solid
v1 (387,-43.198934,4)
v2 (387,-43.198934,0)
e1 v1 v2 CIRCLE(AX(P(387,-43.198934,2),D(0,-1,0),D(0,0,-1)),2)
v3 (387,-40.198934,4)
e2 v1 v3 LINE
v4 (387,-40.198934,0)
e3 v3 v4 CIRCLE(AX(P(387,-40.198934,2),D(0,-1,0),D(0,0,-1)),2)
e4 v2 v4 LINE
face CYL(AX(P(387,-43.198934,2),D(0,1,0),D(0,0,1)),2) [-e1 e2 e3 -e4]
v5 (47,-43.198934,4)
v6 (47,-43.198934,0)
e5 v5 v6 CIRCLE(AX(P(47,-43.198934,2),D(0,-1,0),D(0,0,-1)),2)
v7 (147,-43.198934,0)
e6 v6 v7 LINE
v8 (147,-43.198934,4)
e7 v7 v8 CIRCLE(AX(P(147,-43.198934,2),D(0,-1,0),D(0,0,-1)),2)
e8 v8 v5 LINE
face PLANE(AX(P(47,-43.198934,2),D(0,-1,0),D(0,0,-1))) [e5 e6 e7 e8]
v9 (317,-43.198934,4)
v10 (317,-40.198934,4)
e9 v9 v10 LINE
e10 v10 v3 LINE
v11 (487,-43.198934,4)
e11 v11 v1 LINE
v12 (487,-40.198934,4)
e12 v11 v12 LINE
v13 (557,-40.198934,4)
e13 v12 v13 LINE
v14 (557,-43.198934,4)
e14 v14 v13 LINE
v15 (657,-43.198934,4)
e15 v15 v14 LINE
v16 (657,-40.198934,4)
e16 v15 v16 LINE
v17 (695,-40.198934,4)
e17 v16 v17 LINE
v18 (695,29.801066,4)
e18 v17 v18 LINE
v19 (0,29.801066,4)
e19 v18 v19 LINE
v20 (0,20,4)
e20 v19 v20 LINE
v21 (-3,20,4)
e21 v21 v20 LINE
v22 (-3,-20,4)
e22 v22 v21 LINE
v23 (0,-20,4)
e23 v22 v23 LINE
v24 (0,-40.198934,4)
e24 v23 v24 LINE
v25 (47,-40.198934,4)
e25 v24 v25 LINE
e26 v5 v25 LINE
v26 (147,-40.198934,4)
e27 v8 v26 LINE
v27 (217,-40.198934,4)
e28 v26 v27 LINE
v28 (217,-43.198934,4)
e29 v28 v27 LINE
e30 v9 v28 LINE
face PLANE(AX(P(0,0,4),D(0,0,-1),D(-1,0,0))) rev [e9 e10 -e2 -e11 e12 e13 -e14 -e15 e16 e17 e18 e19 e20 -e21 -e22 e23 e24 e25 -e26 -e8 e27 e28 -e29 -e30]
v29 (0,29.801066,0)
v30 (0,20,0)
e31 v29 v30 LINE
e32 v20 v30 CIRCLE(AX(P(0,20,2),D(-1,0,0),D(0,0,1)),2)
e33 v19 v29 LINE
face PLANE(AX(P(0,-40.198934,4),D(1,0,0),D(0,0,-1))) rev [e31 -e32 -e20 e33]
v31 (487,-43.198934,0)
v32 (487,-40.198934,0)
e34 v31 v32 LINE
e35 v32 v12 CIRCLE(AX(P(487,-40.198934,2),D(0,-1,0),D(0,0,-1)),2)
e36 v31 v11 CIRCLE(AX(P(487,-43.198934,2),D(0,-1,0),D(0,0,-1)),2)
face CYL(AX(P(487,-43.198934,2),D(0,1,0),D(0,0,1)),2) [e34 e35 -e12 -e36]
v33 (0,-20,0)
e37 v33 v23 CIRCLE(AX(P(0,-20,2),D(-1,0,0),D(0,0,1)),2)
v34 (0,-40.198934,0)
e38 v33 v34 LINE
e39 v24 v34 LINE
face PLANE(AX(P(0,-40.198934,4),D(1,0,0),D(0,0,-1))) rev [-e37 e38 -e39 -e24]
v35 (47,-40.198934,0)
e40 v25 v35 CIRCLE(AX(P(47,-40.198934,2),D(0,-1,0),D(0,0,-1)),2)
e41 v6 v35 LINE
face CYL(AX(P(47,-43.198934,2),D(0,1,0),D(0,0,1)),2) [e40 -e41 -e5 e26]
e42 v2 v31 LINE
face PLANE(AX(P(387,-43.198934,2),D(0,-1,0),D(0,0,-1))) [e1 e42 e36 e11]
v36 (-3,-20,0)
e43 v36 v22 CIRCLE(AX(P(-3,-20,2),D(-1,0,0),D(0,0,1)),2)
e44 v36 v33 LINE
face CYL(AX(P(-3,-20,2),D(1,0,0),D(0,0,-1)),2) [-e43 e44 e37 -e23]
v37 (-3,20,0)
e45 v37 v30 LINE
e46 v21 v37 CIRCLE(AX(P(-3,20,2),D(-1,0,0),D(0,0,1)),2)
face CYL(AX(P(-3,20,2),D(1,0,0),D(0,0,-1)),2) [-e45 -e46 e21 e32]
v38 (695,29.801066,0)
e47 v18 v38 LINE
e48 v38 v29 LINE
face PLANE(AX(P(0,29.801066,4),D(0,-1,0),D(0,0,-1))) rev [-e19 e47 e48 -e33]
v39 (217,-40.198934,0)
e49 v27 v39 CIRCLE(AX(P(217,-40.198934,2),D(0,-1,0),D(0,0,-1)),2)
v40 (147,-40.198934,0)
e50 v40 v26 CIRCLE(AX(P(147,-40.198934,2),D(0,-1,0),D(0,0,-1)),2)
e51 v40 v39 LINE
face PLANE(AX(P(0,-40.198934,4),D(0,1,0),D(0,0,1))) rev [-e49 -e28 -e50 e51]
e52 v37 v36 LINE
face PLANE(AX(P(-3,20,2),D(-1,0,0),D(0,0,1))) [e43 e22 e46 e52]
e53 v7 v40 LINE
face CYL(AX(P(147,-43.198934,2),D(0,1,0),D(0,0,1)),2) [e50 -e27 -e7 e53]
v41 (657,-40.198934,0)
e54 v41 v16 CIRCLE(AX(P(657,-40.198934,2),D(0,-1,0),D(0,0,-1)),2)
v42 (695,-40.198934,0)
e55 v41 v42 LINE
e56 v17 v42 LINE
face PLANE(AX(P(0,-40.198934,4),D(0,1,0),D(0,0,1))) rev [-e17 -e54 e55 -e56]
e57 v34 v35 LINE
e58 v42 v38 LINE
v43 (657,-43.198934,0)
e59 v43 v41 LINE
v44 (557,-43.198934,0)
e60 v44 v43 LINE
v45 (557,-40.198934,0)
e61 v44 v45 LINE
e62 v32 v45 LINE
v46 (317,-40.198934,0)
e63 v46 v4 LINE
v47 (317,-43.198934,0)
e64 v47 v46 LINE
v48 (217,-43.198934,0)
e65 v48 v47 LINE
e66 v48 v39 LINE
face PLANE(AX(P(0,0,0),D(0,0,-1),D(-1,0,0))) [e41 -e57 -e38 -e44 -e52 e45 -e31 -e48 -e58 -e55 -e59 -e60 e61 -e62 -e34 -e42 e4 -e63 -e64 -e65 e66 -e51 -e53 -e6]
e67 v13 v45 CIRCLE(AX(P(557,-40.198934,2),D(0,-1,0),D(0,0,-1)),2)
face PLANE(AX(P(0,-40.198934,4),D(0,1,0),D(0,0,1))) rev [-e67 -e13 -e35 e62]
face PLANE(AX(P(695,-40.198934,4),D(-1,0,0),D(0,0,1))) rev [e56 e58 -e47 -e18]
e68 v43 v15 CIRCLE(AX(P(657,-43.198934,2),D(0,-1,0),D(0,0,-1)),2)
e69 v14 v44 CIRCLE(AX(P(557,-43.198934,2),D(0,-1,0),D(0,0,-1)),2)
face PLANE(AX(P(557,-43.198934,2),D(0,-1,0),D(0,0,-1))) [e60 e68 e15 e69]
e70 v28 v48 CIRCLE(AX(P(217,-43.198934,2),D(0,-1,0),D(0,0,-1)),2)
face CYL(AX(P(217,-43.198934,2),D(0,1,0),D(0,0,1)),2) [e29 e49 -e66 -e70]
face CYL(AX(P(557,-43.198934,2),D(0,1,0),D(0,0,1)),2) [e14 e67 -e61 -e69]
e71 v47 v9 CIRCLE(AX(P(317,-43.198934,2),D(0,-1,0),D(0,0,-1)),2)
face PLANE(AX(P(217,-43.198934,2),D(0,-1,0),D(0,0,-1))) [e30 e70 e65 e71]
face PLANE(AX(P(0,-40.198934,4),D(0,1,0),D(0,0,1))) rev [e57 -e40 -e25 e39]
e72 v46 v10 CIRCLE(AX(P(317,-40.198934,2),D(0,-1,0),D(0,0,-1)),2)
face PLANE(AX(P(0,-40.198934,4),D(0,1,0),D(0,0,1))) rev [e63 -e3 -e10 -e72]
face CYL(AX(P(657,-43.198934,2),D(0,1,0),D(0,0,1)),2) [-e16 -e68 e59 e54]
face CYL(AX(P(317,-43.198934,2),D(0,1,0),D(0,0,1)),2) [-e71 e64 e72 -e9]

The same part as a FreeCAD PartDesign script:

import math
import FreeCAD as App
import Part
import Sketcher

V = App.Vector
Q = App.Units.Quantity


def add_polygon(sketch, points):
    """Adds a closed chain of lines whose ends are joined by coincident constraints."""
    first, n = sketch.GeometryCount, len(points)
    for a, b in zip(points, points[1:] + points[:1]):
        sketch.addGeometry(Part.LineSegment(App.Vector(*a, 0), App.Vector(*b, 0)), False)
    for i in range(n):
        sketch.addConstraint(Sketcher.Constraint("Coincident", first + i, 2, first + (i + 1) % n, 1))

doc = App.newDocument("Part")
body = doc.addObject("PartDesign::Body", "Body")

sketch1 = body.newObject("Sketcher::SketchObject", "Sketch")
sketch1.AttachmentSupport = (doc.getObject("XY_Plane"), [""])
sketch1.MapMode = "FlatFace"
add_polygon(sketch1, [(0, 30), (0, -40), (695, -40), (695, 30)])
sketch1.addConstraint([
    Sketcher.Constraint("Vertical", 0),
    Sketcher.Constraint("Horizontal", 1),
    Sketcher.Constraint("Vertical", 2),
    Sketcher.Constraint("Horizontal", 3),
    Sketcher.Constraint("PointOnObject", 0, 2, -2),
    Sketcher.Constraint("DistanceX", 1, 1, 1, 2, Q("695 mm")),
    Sketcher.Constraint("DistanceY", 0, 2, 0, 1, Q("70 mm")),
    Sketcher.Constraint("DistanceY", 0, 2, -1, 1, Q("40.198934 mm")),
])
pad1 = body.newObject("PartDesign::Pad", "Pad")
pad1.Profile = sketch1
pad1.Length = 4

sketch2 = body.newObject("Sketcher::SketchObject", "Sketch001")
sketch2.AttachmentSupport = (doc.getObject("XZ_Plane"), [""])
sketch2.MapMode = "FlatFace"
sketch2.AttachmentOffset = App.Placement(V(0, 0, 40.198934), App.Rotation())
sketch2.addGeometry([
    Part.LineSegment(V(147, 4, 0), V(47, 4, 0)),
    Part.ArcOfCircle(Part.Circle(V(47, 2, 0), V(0, 0, 1), 2), math.radians(90), math.radians(270)),
    Part.LineSegment(V(47, 0, 0), V(147, 0, 0)),
    Part.ArcOfCircle(Part.Circle(V(147, 2, 0), V(0, 0, 1), 2), math.radians(-90), math.radians(90)),
    Part.LineSegment(V(317, 4, 0), V(217, 4, 0)),
    Part.ArcOfCircle(Part.Circle(V(217, 2, 0), V(0, 0, 1), 2), math.radians(90), math.radians(270)),
    Part.LineSegment(V(217, 0, 0), V(317, 0, 0)),
    Part.ArcOfCircle(Part.Circle(V(317, 2, 0), V(0, 0, 1), 2), math.radians(-90), math.radians(90)),
    Part.LineSegment(V(487, 4, 0), V(387, 4, 0)),
    Part.ArcOfCircle(Part.Circle(V(387, 2, 0), V(0, 0, 1), 2), math.radians(90), math.radians(270)),
    Part.LineSegment(V(387, 0, 0), V(487, 0, 0)),
    Part.ArcOfCircle(Part.Circle(V(487, 2, 0), V(0, 0, 1), 2), math.radians(-90), math.radians(90)),
    Part.LineSegment(V(657, 4, 0), V(557, 4, 0)),
    Part.ArcOfCircle(Part.Circle(V(557, 2, 0), V(0, 0, 1), 2), math.radians(90), math.radians(270)),
    Part.LineSegment(V(557, 0, 0), V(657, 0, 0)),
    Part.ArcOfCircle(Part.Circle(V(657, 2, 0), V(0, 0, 1), 2), math.radians(-90), math.radians(90)),
], False)
sketch2.addConstraint([
    Sketcher.Constraint("Tangent", 0, 2, 1, 1),
    Sketcher.Constraint("Tangent", 1, 2, 2, 1),
    Sketcher.Constraint("Tangent", 2, 2, 3, 1),
    Sketcher.Constraint("Tangent", 3, 2, 0, 1),
    Sketcher.Constraint("Tangent", 4, 2, 5, 1),
    Sketcher.Constraint("Tangent", 5, 2, 6, 1),
    Sketcher.Constraint("Tangent", 6, 2, 7, 1),
    Sketcher.Constraint("Tangent", 7, 2, 4, 1),
    Sketcher.Constraint("Tangent", 8, 2, 9, 1),
    Sketcher.Constraint("Tangent", 9, 2, 10, 1),
    Sketcher.Constraint("Tangent", 10, 2, 11, 1),
    Sketcher.Constraint("Tangent", 11, 2, 8, 1),
    Sketcher.Constraint("Tangent", 12, 2, 13, 1),
    Sketcher.Constraint("Tangent", 13, 2, 14, 1),
    Sketcher.Constraint("Tangent", 14, 2, 15, 1),
    Sketcher.Constraint("Tangent", 15, 2, 12, 1),
    Sketcher.Constraint("Horizontal", 0),
    Sketcher.Constraint("Horizontal", 2),
    Sketcher.Constraint("Horizontal", 4),
    Sketcher.Constraint("Horizontal", 6),
    Sketcher.Constraint("Horizontal", 8),
    Sketcher.Constraint("Horizontal", 10),
    Sketcher.Constraint("Horizontal", 12),
    Sketcher.Constraint("Horizontal", 14),
    Sketcher.Constraint("Equal", 3, 5),
    Sketcher.Constraint("Equal", 7, 9),
    Sketcher.Constraint("Equal", 11, 13),
    Sketcher.Constraint("PointOnObject", 1, 2, -1),
    Sketcher.Constraint("PointOnObject", 5, 2, -1),
    Sketcher.Constraint("PointOnObject", 9, 2, -1),
    Sketcher.Constraint("PointOnObject", 13, 2, -1),
    Sketcher.Constraint("Equal", 2, 4),
    Sketcher.Constraint("Equal", 6, 8),
    Sketcher.Constraint("Equal", 10, 12),
    Sketcher.Constraint("Radius", 1, Q("2 mm")),
    Sketcher.Constraint("DistanceX", 0, 2, 0, 1, Q("100 mm")),
    Sketcher.Constraint("DistanceX", -1, 1, 1, 3, Q("47 mm")),
    Sketcher.Constraint("DistanceX", -1, 1, 5, 3, Q("217 mm")),
    Sketcher.Constraint("DistanceX", -1, 1, 9, 3, Q("387 mm")),
    Sketcher.Constraint("DistanceX", -1, 1, 13, 3, Q("557 mm")),
])
pad2 = body.newObject("PartDesign::Pad", "Pad001")
pad2.Profile = sketch2
pad2.Length = 3

sketch3 = body.newObject("Sketcher::SketchObject", "Sketch002")
sketch3.AttachmentSupport = (doc.getObject("YZ_Plane"), [""])
sketch3.MapMode = "FlatFace"
sketch3.addGeometry([
    Part.LineSegment(V(-20, 4, 0), V(20, 4, 0)),
    Part.ArcOfCircle(Part.Circle(V(20, 2, 0), V(0, 0, 1), 2), math.radians(-90), math.radians(90)),
    Part.LineSegment(V(20, 0, 0), V(-20, 0, 0)),
    Part.ArcOfCircle(Part.Circle(V(-20, 2, 0), V(0, 0, 1), 2), math.radians(90), math.radians(270)),
], False)
sketch3.addConstraint([
    Sketcher.Constraint("Tangent", 0, 2, 1, 2),
    Sketcher.Constraint("Tangent", 1, 1, 2, 1),
    Sketcher.Constraint("Tangent", 2, 2, 3, 2),
    Sketcher.Constraint("Tangent", 3, 1, 0, 1),
    Sketcher.Constraint("Horizontal", 0),
    Sketcher.Constraint("Horizontal", 2),
    Sketcher.Constraint("Symmetric", 1, 1, 2, 2, -1, 1),
    Sketcher.Constraint("Radius", 1, Q("2 mm")),
    Sketcher.Constraint("DistanceX", 0, 1, 0, 2, Q("40 mm")),
])
pad3 = body.newObject("PartDesign::Pad", "Pad002")
pad3.Profile = sketch3
pad3.Length = 3
pad3.Reversed = True

doc.recompute()
